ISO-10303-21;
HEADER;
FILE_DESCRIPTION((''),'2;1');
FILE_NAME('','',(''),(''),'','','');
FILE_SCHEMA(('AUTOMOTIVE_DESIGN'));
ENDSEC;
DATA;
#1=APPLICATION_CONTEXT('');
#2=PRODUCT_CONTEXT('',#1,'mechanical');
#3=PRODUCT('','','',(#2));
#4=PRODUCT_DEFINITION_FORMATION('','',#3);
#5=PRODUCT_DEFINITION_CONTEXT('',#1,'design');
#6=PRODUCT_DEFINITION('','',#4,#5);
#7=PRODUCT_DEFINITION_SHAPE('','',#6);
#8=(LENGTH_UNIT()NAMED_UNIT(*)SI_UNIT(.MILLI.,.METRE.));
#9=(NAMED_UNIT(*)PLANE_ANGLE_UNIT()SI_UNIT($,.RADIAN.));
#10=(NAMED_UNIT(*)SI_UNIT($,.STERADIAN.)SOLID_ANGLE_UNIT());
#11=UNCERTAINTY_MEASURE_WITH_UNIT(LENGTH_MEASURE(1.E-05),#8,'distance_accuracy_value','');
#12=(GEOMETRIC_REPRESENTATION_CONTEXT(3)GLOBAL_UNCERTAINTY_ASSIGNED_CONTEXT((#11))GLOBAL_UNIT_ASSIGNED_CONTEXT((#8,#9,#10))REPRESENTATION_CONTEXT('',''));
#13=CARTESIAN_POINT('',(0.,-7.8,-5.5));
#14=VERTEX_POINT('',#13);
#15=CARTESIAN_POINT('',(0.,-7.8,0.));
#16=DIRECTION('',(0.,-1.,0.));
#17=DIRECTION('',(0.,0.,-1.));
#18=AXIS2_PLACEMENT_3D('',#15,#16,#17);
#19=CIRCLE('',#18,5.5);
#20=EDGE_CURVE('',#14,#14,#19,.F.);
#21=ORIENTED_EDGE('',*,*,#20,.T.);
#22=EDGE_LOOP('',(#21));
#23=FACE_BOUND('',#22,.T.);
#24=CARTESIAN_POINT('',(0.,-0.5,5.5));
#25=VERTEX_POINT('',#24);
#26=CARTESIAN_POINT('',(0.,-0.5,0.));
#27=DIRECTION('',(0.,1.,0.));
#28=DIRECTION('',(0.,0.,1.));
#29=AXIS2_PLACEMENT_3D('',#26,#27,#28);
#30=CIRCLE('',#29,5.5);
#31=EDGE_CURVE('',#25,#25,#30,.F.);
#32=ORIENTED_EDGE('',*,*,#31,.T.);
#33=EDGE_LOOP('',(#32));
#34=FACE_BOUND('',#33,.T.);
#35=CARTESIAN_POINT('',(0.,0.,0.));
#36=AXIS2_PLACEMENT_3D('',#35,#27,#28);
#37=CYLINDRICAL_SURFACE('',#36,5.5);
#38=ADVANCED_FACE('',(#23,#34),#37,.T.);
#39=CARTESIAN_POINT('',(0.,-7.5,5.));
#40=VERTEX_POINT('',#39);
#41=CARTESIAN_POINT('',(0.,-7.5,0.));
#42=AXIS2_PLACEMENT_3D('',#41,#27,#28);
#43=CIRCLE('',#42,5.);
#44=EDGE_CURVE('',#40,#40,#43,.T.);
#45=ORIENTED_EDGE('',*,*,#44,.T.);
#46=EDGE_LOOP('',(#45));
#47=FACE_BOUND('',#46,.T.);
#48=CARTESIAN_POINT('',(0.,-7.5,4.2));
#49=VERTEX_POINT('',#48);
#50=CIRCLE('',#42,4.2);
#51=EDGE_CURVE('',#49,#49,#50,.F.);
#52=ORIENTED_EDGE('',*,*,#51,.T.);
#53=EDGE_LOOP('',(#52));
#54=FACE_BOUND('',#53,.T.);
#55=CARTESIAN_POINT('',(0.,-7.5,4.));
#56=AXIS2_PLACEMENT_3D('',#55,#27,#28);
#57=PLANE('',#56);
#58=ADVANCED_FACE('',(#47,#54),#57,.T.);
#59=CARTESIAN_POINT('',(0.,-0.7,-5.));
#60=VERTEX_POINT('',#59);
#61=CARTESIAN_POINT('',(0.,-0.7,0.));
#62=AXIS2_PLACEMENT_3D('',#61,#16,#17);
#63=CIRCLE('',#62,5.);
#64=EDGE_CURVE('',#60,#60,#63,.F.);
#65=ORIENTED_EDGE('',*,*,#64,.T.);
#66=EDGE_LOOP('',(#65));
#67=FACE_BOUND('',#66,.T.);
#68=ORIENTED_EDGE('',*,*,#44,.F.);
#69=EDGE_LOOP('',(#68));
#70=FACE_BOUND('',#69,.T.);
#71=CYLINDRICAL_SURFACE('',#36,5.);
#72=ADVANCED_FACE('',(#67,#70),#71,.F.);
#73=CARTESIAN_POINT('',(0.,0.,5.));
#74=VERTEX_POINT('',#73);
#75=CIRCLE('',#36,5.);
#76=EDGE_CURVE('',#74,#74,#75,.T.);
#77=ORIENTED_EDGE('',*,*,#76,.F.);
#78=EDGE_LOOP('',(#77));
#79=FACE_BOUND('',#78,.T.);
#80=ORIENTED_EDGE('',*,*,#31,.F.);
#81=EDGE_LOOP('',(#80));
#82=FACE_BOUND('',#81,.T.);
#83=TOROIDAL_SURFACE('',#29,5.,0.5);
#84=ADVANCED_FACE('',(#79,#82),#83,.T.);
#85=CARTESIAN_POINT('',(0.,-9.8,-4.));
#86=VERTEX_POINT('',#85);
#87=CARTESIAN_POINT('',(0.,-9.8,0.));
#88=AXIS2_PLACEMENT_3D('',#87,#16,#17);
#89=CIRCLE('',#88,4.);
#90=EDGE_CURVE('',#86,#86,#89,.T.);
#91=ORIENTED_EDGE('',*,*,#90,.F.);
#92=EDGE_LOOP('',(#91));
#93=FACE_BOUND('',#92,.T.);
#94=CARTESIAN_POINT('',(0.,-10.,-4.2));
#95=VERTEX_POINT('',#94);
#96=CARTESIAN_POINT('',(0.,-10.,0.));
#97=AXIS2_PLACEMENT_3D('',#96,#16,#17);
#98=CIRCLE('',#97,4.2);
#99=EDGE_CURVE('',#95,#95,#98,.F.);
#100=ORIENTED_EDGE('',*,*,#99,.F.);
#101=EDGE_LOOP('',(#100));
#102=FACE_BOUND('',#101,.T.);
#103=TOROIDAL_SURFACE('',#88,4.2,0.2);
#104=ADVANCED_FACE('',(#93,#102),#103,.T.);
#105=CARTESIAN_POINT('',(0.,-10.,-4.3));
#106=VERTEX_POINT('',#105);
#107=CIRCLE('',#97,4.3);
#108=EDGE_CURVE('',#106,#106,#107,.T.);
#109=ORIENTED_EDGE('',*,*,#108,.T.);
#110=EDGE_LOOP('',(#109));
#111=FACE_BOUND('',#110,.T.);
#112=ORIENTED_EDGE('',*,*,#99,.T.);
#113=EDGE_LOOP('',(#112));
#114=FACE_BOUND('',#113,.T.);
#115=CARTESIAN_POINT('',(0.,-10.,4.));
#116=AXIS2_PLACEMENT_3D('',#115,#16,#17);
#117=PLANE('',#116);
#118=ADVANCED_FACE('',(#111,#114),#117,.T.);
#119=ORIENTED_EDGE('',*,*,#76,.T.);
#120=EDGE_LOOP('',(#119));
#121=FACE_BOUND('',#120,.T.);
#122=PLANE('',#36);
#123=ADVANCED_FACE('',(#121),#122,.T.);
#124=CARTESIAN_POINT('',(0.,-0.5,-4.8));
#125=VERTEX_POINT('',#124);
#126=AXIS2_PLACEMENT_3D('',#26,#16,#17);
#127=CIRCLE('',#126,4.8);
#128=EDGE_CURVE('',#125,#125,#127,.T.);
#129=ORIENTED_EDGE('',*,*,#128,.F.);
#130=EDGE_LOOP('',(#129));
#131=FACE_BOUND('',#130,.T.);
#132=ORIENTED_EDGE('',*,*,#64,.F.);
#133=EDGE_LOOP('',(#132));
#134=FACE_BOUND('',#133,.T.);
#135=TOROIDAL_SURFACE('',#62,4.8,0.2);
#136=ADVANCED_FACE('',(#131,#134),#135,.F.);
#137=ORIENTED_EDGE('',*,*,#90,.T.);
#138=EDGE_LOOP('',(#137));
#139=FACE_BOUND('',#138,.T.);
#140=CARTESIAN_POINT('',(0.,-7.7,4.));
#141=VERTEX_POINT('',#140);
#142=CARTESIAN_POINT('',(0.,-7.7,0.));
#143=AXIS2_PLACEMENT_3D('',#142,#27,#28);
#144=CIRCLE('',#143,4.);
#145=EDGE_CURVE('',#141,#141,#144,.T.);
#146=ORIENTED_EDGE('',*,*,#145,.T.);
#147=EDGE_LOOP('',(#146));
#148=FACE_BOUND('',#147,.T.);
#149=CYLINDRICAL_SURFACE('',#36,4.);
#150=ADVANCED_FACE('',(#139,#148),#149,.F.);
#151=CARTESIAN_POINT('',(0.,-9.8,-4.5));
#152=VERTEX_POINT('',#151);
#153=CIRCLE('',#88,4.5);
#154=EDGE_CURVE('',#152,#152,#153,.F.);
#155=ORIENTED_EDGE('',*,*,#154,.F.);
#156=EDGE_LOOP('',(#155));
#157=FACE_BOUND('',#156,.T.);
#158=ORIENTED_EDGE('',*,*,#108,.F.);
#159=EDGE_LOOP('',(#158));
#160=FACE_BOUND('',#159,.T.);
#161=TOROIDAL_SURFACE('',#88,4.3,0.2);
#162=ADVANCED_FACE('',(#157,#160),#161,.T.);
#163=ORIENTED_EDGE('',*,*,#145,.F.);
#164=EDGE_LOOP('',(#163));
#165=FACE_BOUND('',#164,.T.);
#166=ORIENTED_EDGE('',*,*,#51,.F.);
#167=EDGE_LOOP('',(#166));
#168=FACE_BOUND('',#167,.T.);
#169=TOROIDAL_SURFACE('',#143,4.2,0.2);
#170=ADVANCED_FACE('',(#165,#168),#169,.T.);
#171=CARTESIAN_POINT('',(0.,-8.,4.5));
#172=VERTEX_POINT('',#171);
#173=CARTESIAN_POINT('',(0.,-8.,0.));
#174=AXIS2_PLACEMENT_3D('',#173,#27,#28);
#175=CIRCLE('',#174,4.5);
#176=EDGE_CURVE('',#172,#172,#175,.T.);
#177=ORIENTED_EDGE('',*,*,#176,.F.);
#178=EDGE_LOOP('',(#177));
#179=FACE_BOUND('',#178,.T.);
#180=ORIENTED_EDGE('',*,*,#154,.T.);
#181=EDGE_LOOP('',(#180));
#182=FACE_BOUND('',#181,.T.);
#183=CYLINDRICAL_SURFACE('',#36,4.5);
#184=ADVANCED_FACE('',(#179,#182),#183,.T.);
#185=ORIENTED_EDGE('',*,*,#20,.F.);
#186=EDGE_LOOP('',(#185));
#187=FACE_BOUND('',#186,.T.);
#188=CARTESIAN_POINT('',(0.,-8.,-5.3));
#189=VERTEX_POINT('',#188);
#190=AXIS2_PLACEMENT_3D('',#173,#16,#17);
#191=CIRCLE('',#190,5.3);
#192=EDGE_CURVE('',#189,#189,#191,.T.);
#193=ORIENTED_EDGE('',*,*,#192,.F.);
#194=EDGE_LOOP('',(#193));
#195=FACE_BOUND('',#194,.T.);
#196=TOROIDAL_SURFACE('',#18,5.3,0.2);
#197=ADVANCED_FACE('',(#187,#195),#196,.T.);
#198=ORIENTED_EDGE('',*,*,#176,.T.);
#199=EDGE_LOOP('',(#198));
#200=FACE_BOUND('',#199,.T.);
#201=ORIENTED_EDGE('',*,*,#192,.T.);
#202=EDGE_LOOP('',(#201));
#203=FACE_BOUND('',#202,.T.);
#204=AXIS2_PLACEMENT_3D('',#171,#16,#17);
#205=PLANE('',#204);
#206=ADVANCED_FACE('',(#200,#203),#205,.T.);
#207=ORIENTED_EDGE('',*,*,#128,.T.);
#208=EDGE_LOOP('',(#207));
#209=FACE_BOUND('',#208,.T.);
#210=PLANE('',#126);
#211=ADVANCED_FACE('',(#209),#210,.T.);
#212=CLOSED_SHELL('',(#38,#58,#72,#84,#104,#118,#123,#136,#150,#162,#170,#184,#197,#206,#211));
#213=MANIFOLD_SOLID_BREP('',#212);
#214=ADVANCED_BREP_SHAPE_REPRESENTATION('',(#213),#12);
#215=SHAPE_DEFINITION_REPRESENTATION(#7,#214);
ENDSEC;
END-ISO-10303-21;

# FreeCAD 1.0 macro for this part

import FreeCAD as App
import Part
import Sketcher
from FreeCAD import Vector
Q = App.Units.Quantity


def edges_at(feature, points):
    """Names of the edges that pass closest to the given points."""
    edges = feature.Shape.Edges
    near = lambda p: min(range(len(edges)), key=lambda i: edges[i].distToShape(Part.Vertex(*p))[0])
    return sorted({f"Edge{near(p) + 1}" for p in points})


def add_polygon(sketch, points):
    """Adds a closed chain of lines whose ends are joined by coincident constraints."""
    first, n = sketch.GeometryCount, len(points)
    for a, b in zip(points, points[1:] + points[:1]):
        sketch.addGeometry(Part.LineSegment(App.Vector(*a, 0), App.Vector(*b, 0)), False)
    for i in range(n):
        sketch.addConstraint(Sketcher.Constraint("Coincident", first + i, 2, first + (i + 1) % n, 1))

doc = App.newDocument("Part")
body = doc.addObject("PartDesign::Body", "Body")

sketch1 = doc.addObject("Sketcher::SketchObject", "Sketch")
body.addObject(sketch1)
sketch1.AttachmentSupport = (doc.YZ_Plane, [""])
sketch1.MapMode = "FlatFace"
add_polygon(sketch1, [(0, 0), (0, 5.5), (-8, 5.5), (-8, 4.5), (-10, 4.5), (-10, 4), (-7.5, 4), (-7.5, 5), (-0.5, 5), (-0.5, 0)])
sketch1.addConstraint([
    Sketcher.Constraint("Vertical", 0),
    Sketcher.Constraint("Horizontal", 1),
    Sketcher.Constraint("Vertical", 2),
    Sketcher.Constraint("Horizontal", 3),
    Sketcher.Constraint("Vertical", 4),
    Sketcher.Constraint("Horizontal", 5),
    Sketcher.Constraint("Vertical", 6),
    Sketcher.Constraint("Horizontal", 7),
    Sketcher.Constraint("Vertical", 8),
    Sketcher.Constraint("Horizontal", 9),
    Sketcher.Constraint("Coincident", 9, 2, -1, 1),
    Sketcher.Constraint("Equal", 9, 4),
    Sketcher.Constraint("Equal", 2, 6),
    Sketcher.Constraint("DistanceX", 1, 2, 1, 1, Q("8 mm")),
    Sketcher.Constraint("DistanceX", 3, 2, 3, 1, Q("2 mm")),
    Sketcher.Constraint("DistanceX", 7, 1, 7, 2, Q("7 mm")),
    Sketcher.Constraint("DistanceY", 2, 2, 2, 1, Q("1 mm")),
    Sketcher.Constraint("DistanceY", 8, 2, 8, 1, Q("5 mm")),
    Sketcher.Constraint("DistanceX", 5, 1, 5, 2, Q("2.5 mm")),
])
revolution = doc.addObject("PartDesign::Revolution", "Revolution")
body.addObject(revolution)
revolution.Profile = sketch1
revolution.ReferenceAxis = (sketch1, ["H_Axis"])
revolution.Angle = 360
doc.recompute()

fillet = doc.addObject("PartDesign::Fillet", "Fillet")
body.addObject(fillet)
fillet.Base = (revolution, edges_at(revolution, [(0, 0, -5.5)]))
fillet.Radius = 0.5
doc.recompute()

fillet2 = doc.addObject("PartDesign::Fillet", "Fillet001")
body.addObject(fillet2)
fillet2.Base = (fillet, edges_at(fillet, [
    (0, -0.5, -5),
    (0, -8, -5.5),
    (0, -10, -4.5),
    (0, -10, -4),
    (0, -7.5, -4),
]))
fillet2.Radius = 0.2

doc.recompute()
